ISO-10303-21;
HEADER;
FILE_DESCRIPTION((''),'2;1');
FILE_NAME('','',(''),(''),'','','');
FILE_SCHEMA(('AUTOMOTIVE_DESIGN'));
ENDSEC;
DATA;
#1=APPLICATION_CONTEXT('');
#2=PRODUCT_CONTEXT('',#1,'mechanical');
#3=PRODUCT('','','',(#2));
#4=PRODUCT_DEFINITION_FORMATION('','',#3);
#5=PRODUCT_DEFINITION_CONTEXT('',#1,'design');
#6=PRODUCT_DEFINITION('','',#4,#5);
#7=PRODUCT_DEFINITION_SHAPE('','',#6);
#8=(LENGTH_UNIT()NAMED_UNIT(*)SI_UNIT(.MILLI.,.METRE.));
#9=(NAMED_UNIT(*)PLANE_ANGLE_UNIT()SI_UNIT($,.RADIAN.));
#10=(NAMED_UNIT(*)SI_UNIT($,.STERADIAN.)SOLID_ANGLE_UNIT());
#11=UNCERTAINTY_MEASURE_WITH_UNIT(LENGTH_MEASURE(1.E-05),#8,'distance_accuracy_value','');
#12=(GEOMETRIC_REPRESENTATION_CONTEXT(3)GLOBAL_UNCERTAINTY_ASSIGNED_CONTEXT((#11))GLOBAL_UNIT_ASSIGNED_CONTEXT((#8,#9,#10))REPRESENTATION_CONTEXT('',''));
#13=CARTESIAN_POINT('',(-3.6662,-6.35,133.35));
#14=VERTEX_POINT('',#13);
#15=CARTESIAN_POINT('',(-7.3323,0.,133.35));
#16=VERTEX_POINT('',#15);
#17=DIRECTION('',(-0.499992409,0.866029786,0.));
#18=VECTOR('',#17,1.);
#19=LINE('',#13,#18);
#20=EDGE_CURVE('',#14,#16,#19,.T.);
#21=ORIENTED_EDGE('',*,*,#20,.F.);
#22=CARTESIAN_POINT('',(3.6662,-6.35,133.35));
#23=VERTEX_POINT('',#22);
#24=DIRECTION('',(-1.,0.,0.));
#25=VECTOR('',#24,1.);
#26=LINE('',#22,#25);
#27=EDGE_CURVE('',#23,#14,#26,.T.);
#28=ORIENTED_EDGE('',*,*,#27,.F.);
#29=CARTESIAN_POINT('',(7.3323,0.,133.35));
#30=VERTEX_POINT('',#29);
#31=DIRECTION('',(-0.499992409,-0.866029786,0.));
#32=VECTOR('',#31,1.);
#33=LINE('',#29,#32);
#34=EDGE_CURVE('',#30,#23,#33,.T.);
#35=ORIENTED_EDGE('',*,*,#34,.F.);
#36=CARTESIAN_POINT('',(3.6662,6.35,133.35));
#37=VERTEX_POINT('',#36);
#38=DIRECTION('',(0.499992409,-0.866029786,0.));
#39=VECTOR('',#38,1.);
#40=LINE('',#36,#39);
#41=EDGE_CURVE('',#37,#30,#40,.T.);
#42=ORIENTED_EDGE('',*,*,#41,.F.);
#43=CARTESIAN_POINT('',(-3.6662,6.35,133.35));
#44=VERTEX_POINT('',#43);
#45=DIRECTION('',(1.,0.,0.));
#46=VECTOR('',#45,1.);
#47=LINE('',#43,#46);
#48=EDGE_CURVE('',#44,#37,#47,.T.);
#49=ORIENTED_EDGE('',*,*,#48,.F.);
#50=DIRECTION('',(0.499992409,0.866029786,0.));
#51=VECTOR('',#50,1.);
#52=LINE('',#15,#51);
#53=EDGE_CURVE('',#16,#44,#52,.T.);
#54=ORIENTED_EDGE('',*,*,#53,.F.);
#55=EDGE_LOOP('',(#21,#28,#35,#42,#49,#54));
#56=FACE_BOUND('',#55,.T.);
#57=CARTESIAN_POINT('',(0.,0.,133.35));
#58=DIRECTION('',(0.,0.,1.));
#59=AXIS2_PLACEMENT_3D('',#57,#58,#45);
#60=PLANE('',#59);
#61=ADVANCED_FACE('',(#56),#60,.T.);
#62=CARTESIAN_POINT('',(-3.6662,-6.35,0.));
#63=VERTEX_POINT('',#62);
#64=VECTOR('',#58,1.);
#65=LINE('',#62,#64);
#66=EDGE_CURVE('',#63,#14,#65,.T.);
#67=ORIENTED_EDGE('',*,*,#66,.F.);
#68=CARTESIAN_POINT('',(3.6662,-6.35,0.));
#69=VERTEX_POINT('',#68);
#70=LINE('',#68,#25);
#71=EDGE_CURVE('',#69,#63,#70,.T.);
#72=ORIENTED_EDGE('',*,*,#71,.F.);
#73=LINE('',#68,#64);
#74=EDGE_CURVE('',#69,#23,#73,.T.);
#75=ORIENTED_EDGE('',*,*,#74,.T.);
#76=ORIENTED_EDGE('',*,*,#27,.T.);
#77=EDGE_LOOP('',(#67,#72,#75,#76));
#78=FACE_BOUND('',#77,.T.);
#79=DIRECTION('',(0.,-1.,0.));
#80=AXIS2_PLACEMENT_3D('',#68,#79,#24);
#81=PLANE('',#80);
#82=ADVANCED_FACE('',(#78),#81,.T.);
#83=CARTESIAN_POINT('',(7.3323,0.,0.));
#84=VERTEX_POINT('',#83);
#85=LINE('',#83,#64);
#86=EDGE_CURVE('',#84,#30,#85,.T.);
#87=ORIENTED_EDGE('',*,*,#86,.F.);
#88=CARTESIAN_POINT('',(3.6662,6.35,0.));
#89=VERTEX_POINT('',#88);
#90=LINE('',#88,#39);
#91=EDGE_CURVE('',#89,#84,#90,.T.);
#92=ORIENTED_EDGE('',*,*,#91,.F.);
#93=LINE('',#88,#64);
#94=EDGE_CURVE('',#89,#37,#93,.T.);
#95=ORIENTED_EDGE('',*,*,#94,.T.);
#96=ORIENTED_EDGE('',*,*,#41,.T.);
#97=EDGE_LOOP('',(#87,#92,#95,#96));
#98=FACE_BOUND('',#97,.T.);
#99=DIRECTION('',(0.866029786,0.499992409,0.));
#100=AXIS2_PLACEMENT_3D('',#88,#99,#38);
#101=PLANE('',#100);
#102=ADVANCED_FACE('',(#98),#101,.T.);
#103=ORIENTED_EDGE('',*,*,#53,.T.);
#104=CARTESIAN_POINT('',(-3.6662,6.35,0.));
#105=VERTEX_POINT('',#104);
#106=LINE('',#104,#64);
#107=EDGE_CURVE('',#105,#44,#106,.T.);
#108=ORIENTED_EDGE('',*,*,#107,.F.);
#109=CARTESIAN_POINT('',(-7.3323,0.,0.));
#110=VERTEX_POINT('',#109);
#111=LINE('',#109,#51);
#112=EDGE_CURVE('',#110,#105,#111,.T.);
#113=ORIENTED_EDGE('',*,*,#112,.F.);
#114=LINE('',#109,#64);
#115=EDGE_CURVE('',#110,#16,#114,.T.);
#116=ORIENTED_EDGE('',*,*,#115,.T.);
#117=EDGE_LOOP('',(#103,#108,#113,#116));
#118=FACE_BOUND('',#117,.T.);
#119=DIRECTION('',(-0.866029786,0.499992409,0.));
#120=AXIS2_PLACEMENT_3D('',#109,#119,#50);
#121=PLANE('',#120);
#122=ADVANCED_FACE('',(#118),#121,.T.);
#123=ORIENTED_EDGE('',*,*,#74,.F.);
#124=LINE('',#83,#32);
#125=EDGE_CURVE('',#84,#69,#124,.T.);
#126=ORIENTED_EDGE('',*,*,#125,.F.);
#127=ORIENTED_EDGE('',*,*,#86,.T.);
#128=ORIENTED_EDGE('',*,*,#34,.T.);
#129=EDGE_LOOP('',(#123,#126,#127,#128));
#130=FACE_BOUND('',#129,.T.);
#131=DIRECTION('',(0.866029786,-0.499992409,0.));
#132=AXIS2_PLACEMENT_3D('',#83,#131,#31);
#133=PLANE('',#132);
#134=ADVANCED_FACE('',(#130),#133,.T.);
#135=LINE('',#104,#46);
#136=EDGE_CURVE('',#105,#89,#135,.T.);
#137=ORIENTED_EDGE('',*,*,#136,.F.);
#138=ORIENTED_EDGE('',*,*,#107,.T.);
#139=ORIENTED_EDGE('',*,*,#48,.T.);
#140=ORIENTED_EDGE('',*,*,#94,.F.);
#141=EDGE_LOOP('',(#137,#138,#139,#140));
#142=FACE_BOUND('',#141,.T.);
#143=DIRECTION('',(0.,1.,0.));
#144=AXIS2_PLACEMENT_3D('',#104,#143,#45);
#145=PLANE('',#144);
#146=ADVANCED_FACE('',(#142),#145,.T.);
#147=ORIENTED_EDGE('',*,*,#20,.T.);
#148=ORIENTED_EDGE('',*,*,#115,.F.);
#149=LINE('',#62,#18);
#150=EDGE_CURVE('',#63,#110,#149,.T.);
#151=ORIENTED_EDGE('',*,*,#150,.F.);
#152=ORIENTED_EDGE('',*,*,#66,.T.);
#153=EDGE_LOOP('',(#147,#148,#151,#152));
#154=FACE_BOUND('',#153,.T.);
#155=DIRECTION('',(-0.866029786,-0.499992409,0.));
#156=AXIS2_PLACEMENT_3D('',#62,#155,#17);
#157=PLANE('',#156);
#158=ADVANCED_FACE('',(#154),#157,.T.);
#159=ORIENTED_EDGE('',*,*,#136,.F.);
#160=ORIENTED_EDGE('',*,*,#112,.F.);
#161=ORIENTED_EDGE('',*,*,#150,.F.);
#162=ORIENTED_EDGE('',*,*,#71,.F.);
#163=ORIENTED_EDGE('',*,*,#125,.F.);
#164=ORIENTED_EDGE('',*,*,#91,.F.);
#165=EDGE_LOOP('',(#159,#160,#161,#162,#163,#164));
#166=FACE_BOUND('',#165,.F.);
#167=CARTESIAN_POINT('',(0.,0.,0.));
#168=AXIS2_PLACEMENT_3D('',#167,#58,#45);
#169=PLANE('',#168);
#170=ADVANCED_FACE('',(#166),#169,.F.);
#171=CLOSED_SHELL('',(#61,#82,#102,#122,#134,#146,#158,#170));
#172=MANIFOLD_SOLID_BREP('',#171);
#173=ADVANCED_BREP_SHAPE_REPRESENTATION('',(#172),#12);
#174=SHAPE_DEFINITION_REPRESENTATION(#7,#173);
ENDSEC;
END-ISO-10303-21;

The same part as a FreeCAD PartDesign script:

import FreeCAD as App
import Part
import Sketcher

V = App.Vector
Q = App.Units.Quantity


def add_polygon(sketch, points):
    """Adds a closed chain of lines whose ends are joined by coincident constraints."""
    first, n = sketch.GeometryCount, len(points)
    for a, b in zip(points, points[1:] + points[:1]):
        sketch.addGeometry(Part.LineSegment(App.Vector(*a, 0), App.Vector(*b, 0)), False)
    for i in range(n):
        sketch.addConstraint(Sketcher.Constraint("Coincident", first + i, 2, first + (i + 1) % n, 1))

doc = App.newDocument("Part")
body = doc.addObject("PartDesign::Body", "Body")

# Sketch on XY plane
sketch1 = doc.addObject("Sketcher::SketchObject", "Sketch")
body.addObject(sketch1)
sketch1.AttachmentSupport = (doc.XY_Plane, [""])
sketch1.MapMode = "FlatFace"
add_polygon(sketch1, [(3.6662, -6.35), (7.3323, 0), (3.6662, 6.35), (-3.6662, 6.35), (-7.3323, 0), (-3.6662, -6.35)])  # lines 0-5
sketch1.addConstraint([
    Sketcher.Constraint("Horizontal", 2),
    Sketcher.Constraint("Horizontal", 5),
    Sketcher.Constraint("Symmetric", 0, 2, 3, 2, -1, 1),
    Sketcher.Constraint("Symmetric", 1, 2, 4, 2, -1, 1),
    Sketcher.Constraint("PointOnObject", 0, 2, -1),
    Sketcher.Constraint("Parallel", 0, 3),
    Sketcher.Constraint("Vertical", 2, 2, 4, 2),
    Sketcher.Constraint("DistanceY", 4, 2, 2, 2, Q("0.5 in")),
    Sketcher.Constraint("Angle", 0, Q("60.0005 deg")),
    Sketcher.Constraint("DistanceX", 2, 2, 0, 2, Q("0.433 in")),
])
pad1 = doc.addObject("PartDesign::Pad", "Pad")
body.addObject(pad1)
pad1.Profile = sketch1
pad1.Length = Q("5.25 in")

doc.recompute()
